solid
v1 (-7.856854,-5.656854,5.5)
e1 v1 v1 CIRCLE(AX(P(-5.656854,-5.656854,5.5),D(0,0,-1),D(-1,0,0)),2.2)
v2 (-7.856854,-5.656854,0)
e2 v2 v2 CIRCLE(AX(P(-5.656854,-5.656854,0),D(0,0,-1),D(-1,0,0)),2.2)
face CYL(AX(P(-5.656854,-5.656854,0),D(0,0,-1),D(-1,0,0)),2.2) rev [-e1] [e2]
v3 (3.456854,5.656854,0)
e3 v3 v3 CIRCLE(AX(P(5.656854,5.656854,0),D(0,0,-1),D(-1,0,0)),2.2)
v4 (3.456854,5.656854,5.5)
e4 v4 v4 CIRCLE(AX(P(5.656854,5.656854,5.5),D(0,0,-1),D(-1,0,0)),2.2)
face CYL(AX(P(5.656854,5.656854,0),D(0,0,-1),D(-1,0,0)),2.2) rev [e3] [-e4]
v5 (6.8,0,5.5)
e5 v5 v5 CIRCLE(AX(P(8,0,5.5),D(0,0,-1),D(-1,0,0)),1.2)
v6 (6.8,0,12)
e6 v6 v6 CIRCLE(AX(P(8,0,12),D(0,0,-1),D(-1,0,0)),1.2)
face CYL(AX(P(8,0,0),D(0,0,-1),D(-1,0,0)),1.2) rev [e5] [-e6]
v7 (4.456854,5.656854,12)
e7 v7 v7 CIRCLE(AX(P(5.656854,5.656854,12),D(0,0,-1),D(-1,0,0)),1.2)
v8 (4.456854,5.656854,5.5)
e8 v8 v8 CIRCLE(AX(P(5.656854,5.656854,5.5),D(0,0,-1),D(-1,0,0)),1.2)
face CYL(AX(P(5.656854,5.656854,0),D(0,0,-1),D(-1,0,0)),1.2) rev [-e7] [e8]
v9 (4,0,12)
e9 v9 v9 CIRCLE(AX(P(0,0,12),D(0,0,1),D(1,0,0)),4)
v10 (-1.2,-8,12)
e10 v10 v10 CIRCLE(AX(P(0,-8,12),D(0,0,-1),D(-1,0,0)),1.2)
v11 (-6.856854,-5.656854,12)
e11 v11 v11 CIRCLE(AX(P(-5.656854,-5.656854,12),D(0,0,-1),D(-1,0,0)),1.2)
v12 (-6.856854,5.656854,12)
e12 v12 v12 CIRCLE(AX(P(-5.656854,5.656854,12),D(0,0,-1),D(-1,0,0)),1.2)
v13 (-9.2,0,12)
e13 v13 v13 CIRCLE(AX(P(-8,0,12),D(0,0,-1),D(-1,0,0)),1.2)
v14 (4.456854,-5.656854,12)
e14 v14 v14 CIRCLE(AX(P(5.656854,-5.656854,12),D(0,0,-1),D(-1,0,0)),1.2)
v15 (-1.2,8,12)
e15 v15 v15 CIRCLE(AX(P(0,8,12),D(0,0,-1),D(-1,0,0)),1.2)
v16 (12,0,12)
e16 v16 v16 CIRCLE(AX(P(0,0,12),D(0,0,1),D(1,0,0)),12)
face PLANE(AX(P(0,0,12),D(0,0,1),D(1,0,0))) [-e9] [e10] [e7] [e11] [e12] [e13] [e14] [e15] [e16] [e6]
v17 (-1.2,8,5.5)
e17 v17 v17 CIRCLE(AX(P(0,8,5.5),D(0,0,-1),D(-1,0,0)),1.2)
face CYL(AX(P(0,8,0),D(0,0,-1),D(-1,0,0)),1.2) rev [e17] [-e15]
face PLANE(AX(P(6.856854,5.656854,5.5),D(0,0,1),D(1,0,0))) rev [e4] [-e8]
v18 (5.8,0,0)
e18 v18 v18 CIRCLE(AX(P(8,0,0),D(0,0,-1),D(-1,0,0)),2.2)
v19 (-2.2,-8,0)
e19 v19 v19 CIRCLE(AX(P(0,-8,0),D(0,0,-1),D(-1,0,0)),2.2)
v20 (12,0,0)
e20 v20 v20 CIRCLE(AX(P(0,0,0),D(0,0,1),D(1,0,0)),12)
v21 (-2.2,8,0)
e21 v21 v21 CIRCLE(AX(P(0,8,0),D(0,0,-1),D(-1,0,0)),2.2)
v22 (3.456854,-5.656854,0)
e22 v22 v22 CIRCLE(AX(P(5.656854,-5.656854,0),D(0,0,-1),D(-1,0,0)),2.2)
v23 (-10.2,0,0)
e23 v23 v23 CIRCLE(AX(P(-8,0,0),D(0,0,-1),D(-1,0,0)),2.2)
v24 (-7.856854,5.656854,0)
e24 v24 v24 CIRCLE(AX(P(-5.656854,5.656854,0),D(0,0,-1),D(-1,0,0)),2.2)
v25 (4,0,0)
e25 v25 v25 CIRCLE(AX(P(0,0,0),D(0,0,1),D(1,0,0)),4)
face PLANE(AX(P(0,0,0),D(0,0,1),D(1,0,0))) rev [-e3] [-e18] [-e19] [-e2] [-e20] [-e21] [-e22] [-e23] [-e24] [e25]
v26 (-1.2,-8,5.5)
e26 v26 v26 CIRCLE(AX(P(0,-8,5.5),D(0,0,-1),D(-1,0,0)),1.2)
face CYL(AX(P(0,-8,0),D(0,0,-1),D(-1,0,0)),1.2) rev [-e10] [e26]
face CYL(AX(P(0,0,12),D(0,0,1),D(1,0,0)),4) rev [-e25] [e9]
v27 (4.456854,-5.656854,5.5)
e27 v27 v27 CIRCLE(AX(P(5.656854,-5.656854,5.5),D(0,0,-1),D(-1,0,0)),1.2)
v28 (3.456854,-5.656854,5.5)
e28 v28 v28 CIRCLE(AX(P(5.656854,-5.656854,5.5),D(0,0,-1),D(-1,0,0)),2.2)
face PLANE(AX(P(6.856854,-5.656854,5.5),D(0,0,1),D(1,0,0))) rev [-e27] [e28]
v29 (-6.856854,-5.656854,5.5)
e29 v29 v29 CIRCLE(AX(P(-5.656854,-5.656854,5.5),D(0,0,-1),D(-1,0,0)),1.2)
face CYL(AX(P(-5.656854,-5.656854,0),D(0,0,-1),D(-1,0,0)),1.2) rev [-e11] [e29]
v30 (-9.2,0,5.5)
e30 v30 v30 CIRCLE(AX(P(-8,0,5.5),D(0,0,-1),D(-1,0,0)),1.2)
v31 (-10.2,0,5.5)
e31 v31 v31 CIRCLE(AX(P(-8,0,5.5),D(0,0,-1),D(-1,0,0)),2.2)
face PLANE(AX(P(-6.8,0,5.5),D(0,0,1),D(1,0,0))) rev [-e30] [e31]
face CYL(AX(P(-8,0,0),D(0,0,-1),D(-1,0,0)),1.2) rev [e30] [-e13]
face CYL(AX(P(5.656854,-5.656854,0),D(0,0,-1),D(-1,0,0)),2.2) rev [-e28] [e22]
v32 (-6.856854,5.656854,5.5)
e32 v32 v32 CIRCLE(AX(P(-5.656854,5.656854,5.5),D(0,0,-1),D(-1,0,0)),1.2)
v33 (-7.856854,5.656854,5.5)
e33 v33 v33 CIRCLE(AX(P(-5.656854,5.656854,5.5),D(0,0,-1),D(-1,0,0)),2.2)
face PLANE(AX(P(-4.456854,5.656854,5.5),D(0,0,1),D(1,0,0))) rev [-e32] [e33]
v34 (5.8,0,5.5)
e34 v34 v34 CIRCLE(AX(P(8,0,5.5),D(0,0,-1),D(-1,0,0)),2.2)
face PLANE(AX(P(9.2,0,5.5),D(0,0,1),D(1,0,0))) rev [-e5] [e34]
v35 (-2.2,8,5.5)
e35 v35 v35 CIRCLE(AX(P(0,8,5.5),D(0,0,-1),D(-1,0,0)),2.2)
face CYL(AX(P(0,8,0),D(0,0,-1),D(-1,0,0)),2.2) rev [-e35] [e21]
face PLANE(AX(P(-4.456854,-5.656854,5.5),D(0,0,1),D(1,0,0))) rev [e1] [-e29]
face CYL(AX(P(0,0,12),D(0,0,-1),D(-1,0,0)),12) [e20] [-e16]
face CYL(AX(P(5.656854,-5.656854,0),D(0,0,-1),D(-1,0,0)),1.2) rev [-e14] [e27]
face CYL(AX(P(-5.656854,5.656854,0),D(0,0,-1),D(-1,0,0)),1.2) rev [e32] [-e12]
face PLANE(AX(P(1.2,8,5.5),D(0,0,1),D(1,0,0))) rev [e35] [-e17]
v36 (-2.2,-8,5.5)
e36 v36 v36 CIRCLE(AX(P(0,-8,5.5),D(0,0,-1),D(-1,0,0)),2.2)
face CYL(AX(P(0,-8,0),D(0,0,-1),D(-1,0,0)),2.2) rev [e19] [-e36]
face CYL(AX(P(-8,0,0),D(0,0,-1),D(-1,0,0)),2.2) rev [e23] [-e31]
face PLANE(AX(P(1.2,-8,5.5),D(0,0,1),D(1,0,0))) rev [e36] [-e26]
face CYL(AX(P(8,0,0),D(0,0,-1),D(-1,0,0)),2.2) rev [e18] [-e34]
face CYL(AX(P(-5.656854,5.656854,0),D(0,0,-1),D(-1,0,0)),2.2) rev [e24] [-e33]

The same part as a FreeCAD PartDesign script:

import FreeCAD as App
import Part
import Sketcher

doc = App.newDocument("Part")
body = doc.addObject("PartDesign::Body", "Body")

# Sketch on XY plane
sketch1 = body.newObject("Sketcher::SketchObject", "Sketch")
sketch1.AttachmentSupport = (doc.getObject("XY_Plane"), [""])
sketch1.MapMode = "FlatFace"
sketch1.addGeometry(Part.Circle(App.Vector(0, 0, 0), App.Vector(0, 0, 1), 12), False)
sketch1.addConstraint([
    Sketcher.Constraint("Coincident", 0, 3, -1, 1),
    Sketcher.Constraint("Diameter", 0, 24.0),
])
pad1 = body.newObject("PartDesign::Pad", "Pad")
pad1.Profile = sketch1
pad1.Length = 12

# Sketch on XY plane
sketch2 = body.newObject("Sketcher::SketchObject", "Sketch001")
sketch2.AttachmentSupport = (doc.getObject("XY_Plane"), [""])
sketch2.MapMode = "FlatFace"
sketch2.AttachmentOffset = App.Placement(App.Vector(0, 0, 12), App.Rotation())
sketch2.addGeometry(Part.Circle(App.Vector(0, 0, 0), App.Vector(0, 0, 1), 4), False)
sketch2.addConstraint([
    Sketcher.Constraint("Coincident", 0, 3, -1, 1),
    Sketcher.Constraint("Diameter", 0, 8.0),
])
doc.recompute()
hole = body.newObject("PartDesign::Hole", "Hole")
hole.Profile = sketch2
hole.ThreadType = "None"
hole.Diameter = 8
hole.DepthType = "ThroughAll"

# Sketch on XY plane
sketch3 = body.newObject("Sketcher::SketchObject", "Sketch002")
sketch3.AttachmentSupport = (doc.getObject("XY_Plane"), [""])
sketch3.MapMode = "FlatFace"
sketch3.addGeometry([
    Part.Circle(App.Vector(-5.7, 5.7, 0), App.Vector(0, 0, 1), 1.2),  # 0
    Part.Circle(App.Vector(0, 8, 0), App.Vector(0, 0, 1), 1.2),  # 1
    Part.Circle(App.Vector(5.7, 5.7, 0), App.Vector(0, 0, 1), 1.2),  # 2
    Part.Circle(App.Vector(8, 0, 0), App.Vector(0, 0, 1), 1.2),  # 3
    Part.Circle(App.Vector(5.7, -5.7, 0), App.Vector(0, 0, 1), 1.2),  # 4
    Part.Circle(App.Vector(0, -8, 0), App.Vector(0, 0, 1), 1.2),  # 5
    Part.Circle(App.Vector(-5.7, -5.7, 0), App.Vector(0, 0, 1), 1.2),  # 6
    Part.Circle(App.Vector(-8, 0, 0), App.Vector(0, 0, 1), 1.2),  # 7
], False)
sketch3.addConstraint([
    Sketcher.Constraint("Equal", 0, 1),
    Sketcher.Constraint("Equal", 1, 2),
    Sketcher.Constraint("Equal", 2, 3),
    Sketcher.Constraint("Equal", 3, 4),
    Sketcher.Constraint("Equal", 4, 5),
    Sketcher.Constraint("Equal", 5, 6),
    Sketcher.Constraint("Equal", 6, 7),
    Sketcher.Constraint("Symmetric", 0, 3, 4, 3, -1, 1),
    Sketcher.Constraint("Symmetric", 1, 3, 5, 3, -1, 1),
    Sketcher.Constraint("Symmetric", 2, 3, 6, 3, -1, 1),
    Sketcher.Constraint("Symmetric", 3, 3, 7, 3, -1, 1),
    Sketcher.Constraint("Symmetric", 0, 3, 2, 3, -2),
    Sketcher.Constraint("PointOnObject", 1, 3, -2),
    Sketcher.Constraint("PointOnObject", 3, 3, -1),
    Sketcher.Constraint("Diameter", 0, 2.4),
    Sketcher.Constraint("DistanceY", -1, 1, 1, 3, 8.0),
    Sketcher.Constraint("DistanceX", -1, 1, 3, 3, 8.0),
    Sketcher.Constraint("DistanceX", 0, 3, 2, 3, 11.313708),
    Sketcher.Constraint("DistanceY", 4, 3, 2, 3, 11.313708),
])
doc.recompute()
hole2 = body.newObject("PartDesign::Hole", "Hole001")
hole2.Profile = sketch3
hole2.ThreadType = "None"
hole2.Diameter = 2.4
hole2.DepthType = "ThroughAll"
hole2.HoleCutType = "Counterbore"
hole2.HoleCutDiameter = 4.4
hole2.HoleCutDepth = 5.5
hole2.Reversed = True

doc.recompute()
